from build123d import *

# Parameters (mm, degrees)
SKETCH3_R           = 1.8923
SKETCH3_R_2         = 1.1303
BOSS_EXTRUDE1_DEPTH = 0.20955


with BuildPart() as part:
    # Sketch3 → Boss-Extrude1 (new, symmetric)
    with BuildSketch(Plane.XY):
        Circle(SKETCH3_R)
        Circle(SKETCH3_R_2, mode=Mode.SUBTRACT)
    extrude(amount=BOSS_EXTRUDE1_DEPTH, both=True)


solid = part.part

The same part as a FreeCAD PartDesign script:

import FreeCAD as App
import Part
import Sketcher
Q = App.Units.Quantity

doc = App.newDocument("Part")
params = doc.addObject("Spreadsheet::Sheet", "Params")
for row, (alias, value) in enumerate([
    ("sketch1_diameter", "0.149 in"),
    ("sketch1_diameter2", "0.089 in"),
    ("pad1_length", "0.0165 in"),
], start=1):
    params.set(f"A{row}", alias)
    params.set(f"B{row}", "=" + value)
    params.setAlias(f"B{row}", alias)

body = doc.addObject("PartDesign::Body", "Body")

# Sketch on XY plane
sketch1 = body.newObject("Sketcher::SketchObject", "Sketch")
sketch1.AttachmentSupport = (doc.getObject("XY_Plane"), [""])
sketch1.MapMode = "FlatFace"
sketch1.addGeometry([
    Part.Circle(App.Vector(0, 0, 0), App.Vector(0, 0, 1), 1.8923),
    Part.Circle(App.Vector(0, 0, 0), App.Vector(0, 0, 1), 1.1303),
], False)
sketch1.addConstraint([
    Sketcher.Constraint("Coincident", 0, 3, -1, 1),
    Sketcher.Constraint("Coincident", 1, 3, -1, 1),
    Sketcher.Constraint("Diameter", 0, Q("0.149 in")),
    Sketcher.Constraint("Diameter", 1, Q("0.089 in")),
])
sketch1.setExpression("Constraints[2]", "Params.sketch1_diameter")
sketch1.setExpression("Constraints[3]", "Params.sketch1_diameter2")
pad1 = body.newObject("PartDesign::Pad", "Pad")
pad1.Profile = sketch1
pad1.setExpression("Length", "Params.pad1_length")
pad1.Midplane = True

doc.recompute()
